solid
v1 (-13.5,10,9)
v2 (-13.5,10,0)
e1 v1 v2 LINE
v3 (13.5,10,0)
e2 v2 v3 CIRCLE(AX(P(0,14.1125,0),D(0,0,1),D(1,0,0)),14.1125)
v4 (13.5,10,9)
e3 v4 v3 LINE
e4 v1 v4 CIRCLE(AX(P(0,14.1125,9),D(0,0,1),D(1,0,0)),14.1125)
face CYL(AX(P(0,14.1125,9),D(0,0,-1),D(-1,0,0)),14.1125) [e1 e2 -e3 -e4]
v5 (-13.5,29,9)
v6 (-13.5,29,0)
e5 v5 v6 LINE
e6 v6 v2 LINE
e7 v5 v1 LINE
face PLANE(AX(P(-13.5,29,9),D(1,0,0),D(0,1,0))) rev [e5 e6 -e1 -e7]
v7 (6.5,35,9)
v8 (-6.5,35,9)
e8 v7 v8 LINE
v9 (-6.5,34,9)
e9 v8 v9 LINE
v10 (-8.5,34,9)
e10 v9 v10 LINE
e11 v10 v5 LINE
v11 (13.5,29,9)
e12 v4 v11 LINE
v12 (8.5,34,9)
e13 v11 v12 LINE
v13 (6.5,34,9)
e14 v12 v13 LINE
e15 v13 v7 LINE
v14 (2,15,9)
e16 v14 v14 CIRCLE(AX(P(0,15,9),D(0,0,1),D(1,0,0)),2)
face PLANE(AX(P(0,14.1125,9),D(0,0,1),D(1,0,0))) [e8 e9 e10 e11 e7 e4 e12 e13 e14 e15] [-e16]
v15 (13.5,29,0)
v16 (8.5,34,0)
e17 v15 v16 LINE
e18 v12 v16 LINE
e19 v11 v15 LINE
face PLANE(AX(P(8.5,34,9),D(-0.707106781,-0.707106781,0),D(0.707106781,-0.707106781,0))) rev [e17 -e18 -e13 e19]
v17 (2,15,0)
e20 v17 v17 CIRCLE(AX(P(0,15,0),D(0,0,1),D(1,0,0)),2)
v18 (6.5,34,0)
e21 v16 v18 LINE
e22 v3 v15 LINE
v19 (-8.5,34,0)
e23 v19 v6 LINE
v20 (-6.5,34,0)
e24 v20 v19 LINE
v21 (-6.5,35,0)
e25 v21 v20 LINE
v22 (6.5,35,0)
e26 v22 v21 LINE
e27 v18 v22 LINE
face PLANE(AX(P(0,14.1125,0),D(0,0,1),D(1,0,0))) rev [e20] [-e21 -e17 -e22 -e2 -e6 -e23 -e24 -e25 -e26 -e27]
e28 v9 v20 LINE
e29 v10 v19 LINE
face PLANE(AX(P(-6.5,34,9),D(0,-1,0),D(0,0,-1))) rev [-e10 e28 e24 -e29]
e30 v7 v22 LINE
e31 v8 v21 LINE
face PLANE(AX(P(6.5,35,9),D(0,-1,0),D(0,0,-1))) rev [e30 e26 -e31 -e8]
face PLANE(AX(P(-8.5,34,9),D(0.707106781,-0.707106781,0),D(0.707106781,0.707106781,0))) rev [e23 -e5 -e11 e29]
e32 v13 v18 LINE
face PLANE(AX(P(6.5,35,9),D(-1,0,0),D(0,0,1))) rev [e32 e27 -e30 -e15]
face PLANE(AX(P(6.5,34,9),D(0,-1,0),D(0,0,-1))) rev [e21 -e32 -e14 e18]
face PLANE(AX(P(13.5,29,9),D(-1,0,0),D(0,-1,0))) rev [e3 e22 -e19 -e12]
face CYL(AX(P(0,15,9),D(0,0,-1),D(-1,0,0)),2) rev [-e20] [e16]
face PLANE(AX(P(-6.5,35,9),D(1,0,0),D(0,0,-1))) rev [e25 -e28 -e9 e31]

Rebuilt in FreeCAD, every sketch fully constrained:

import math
import FreeCAD as App
import Part
import Sketcher

V = App.Vector
Q = App.Units.Quantity

doc = App.newDocument("Part")
body = doc.addObject("PartDesign::Body", "Body")

# Sketch on XY plane
sketch1 = body.newObject("Sketcher::SketchObject", "Sketch")
sketch1.AttachmentSupport = (doc.getObject("XY_Plane"), [""])
sketch1.MapMode = "FlatFace"
sketch1.addGeometry(Part.LineSegment(V(6.5, 35, 0), V(-6.5, 35, 0)), False)
sketch1.addGeometry(Part.LineSegment(V(-6.5, 35, 0), V(-6.5, 34, 0)), False)
sketch1.addGeometry(Part.LineSegment(V(-6.5, 34, 0), V(-8.5, 34, 0)), False)
sketch1.addGeometry(Part.LineSegment(V(-8.5, 34, 0), V(-13.5, 29, 0)), False)
sketch1.addGeometry(Part.LineSegment(V(-13.5, 29, 0), V(-13.5, 10, 0)), False)
sketch1.addGeometry(Part.ArcOfCircle(Part.Circle(V(0, 14.1125, 0), V(0, 0, 1), 14.1125), math.radians(-163.057711), math.radians(-16.942289)), False)
sketch1.addGeometry(Part.LineSegment(V(13.5, 10, 0), V(13.5, 29, 0)), False)
sketch1.addGeometry(Part.LineSegment(V(13.5, 29, 0), V(8.5, 34, 0)), False)
sketch1.addGeometry(Part.LineSegment(V(8.5, 34, 0), V(6.5, 34, 0)), False)
sketch1.addGeometry(Part.LineSegment(V(6.5, 34, 0), V(6.5, 35, 0)), False)
sketch1.addGeometry(Part.Circle(V(0, 15, 0), V(0, 0, 1), 2), False)
sketch1.addConstraint(Sketcher.Constraint("Coincident", 0, 2, 1, 1))
sketch1.addConstraint(Sketcher.Constraint("Coincident", 1, 2, 2, 1))
sketch1.addConstraint(Sketcher.Constraint("Coincident", 2, 2, 3, 1))
sketch1.addConstraint(Sketcher.Constraint("Coincident", 3, 2, 4, 1))
sketch1.addConstraint(Sketcher.Constraint("Coincident", 4, 2, 5, 1))
sketch1.addConstraint(Sketcher.Constraint("Coincident", 5, 2, 6, 1))
sketch1.addConstraint(Sketcher.Constraint("Coincident", 6, 2, 7, 1))
sketch1.addConstraint(Sketcher.Constraint("Coincident", 7, 2, 8, 1))
sketch1.addConstraint(Sketcher.Constraint("Coincident", 8, 2, 9, 1))
sketch1.addConstraint(Sketcher.Constraint("Coincident", 9, 2, 0, 1))
sketch1.addConstraint(Sketcher.Constraint("Horizontal", 0))
sketch1.addConstraint(Sketcher.Constraint("Vertical", 1))
sketch1.addConstraint(Sketcher.Constraint("Horizontal", 2))
sketch1.addConstraint(Sketcher.Constraint("Vertical", 4))
sketch1.addConstraint(Sketcher.Constraint("Vertical", 6))
sketch1.addConstraint(Sketcher.Constraint("Horizontal", 8))
sketch1.addConstraint(Sketcher.Constraint("Vertical", 9))
sketch1.addConstraint(Sketcher.Constraint("Symmetric", 4, 2, 5, 2, -2))
sketch1.addConstraint(Sketcher.Constraint("Symmetric", 2, 2, 7, 2, -2))
sketch1.addConstraint(Sketcher.Constraint("PointOnObject", 10, 3, -2))
sketch1.addConstraint(Sketcher.Constraint("Perpendicular", 3, 7))
sketch1.addConstraint(Sketcher.Constraint("Horizontal", 3, 2, 6, 2))
sketch1.addConstraint(Sketcher.Constraint("Equal", 2, 8))
sketch1.addConstraint(Sketcher.Constraint("Diameter", 10, Q("4 mm")))
sketch1.addConstraint(Sketcher.Constraint("DistanceX", 0, 2, 0, 1, Q("13 mm")))
sketch1.addConstraint(Sketcher.Constraint("DistanceX", 2, 2, 2, 1, Q("2 mm")))
sketch1.addConstraint(Sketcher.Constraint("DistanceY", 1, 2, 1, 1, Q("1 mm")))
sketch1.addConstraint(Sketcher.Constraint("DistanceY", 4, 2, 4, 1, Q("19 mm")))
sketch1.addConstraint(Sketcher.Constraint("DistanceY", -1, 1, 10, 3, Q("15 mm")))
sketch1.addConstraint(Sketcher.Constraint("DistanceY", -1, 1, 0, 2, Q("35 mm")))
sketch1.addConstraint(Sketcher.Constraint("DistanceY", -1, 1, 3, 2, Q("29 mm")))
sketch1.addConstraint(Sketcher.Constraint("Radius", 5, Q("14.1125 mm")))
pad1 = body.newObject("PartDesign::Pad", "Pad")
pad1.Profile = sketch1
pad1.Length = 9

doc.recompute()
